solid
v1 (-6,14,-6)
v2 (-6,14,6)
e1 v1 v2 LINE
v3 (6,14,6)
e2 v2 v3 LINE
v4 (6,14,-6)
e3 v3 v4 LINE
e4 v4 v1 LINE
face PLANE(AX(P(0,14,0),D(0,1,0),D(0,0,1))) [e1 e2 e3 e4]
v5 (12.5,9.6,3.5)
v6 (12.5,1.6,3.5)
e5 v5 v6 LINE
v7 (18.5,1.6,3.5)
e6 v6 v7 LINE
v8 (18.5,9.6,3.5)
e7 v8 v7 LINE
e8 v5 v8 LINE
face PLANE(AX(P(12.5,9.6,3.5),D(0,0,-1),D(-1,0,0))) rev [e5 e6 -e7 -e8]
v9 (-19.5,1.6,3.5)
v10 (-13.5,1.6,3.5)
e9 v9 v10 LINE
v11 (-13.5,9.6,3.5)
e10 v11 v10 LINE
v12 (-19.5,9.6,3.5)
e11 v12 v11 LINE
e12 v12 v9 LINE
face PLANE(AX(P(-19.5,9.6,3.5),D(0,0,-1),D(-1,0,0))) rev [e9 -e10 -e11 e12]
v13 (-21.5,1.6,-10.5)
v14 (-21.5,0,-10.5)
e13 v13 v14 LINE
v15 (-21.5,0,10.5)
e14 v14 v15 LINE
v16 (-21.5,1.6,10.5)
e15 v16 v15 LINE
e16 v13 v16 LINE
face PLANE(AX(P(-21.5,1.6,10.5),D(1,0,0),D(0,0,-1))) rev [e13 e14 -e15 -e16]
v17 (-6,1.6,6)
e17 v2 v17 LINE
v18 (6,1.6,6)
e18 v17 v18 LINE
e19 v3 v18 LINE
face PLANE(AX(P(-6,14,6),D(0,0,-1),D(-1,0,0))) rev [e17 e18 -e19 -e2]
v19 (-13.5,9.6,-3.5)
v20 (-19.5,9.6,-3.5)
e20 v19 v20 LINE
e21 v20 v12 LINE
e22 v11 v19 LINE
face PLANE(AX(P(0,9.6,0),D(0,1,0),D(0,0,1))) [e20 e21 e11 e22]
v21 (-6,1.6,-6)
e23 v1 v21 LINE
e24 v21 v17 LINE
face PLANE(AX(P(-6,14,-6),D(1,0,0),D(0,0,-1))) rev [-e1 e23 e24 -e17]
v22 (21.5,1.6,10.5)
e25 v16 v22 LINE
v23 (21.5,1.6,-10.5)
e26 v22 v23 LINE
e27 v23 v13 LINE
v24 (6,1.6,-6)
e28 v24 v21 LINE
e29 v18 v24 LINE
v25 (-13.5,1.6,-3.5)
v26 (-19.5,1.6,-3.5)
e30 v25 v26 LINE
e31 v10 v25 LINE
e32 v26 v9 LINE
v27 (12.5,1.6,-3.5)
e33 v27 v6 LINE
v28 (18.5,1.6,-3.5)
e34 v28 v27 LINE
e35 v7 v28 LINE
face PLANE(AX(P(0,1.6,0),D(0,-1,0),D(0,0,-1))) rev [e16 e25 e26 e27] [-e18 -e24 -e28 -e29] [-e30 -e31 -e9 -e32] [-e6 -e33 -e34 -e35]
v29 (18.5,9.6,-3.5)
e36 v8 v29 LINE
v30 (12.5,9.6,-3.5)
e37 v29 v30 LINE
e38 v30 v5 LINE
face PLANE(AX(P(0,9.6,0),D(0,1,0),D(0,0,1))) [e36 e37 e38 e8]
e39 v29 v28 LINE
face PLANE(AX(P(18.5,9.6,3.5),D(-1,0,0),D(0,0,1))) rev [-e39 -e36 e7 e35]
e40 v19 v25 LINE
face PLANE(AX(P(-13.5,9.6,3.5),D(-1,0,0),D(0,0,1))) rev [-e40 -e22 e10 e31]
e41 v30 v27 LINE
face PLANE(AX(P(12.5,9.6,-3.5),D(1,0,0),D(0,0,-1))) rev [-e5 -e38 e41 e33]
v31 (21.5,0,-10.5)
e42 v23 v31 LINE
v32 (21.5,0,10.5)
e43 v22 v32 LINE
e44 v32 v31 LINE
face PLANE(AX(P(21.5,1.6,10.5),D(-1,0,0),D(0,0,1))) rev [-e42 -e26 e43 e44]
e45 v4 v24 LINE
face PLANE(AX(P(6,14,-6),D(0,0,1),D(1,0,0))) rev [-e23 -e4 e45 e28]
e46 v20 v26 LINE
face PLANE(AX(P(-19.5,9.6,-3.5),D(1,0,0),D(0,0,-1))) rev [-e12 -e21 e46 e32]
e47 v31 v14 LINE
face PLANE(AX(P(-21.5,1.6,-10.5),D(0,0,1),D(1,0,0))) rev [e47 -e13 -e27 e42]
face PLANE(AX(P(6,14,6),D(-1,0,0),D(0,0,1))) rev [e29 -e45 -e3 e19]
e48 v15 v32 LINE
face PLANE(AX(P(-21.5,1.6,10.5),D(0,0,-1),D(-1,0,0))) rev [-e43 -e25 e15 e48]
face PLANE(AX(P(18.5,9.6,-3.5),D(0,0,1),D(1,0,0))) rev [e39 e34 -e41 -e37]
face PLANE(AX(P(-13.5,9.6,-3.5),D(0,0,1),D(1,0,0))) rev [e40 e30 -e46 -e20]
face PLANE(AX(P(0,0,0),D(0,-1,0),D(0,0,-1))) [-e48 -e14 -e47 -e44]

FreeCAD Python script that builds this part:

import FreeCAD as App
import Part
import Sketcher
Q = App.Units.Quantity


def add_polygon(sketch, points):
    """Adds a closed chain of lines whose ends are joined by coincident constraints."""
    first, n = sketch.GeometryCount, len(points)
    for a, b in zip(points, points[1:] + points[:1]):
        sketch.addGeometry(Part.LineSegment(App.Vector(*a, 0), App.Vector(*b, 0)), False)
    for i in range(n):
        sketch.addConstraint(Sketcher.Constraint("Coincident", first + i, 2, first + (i + 1) % n, 1))

doc = App.newDocument("Part")
body = doc.addObject("PartDesign::Body", "Body")

sketch1 = body.newObject("Sketcher::SketchObject", "Sketch")
sketch1.AttachmentSupport = (doc.getObject("XZ_Plane"), [""])
sketch1.MapMode = "FlatFace"
add_polygon(sketch1, [(-22, -10), (-22, 10), (22, 10), (22, -10)])
sketch1.addConstraint([
    Sketcher.Constraint("Vertical", 0),
    Sketcher.Constraint("Horizontal", 1),
    Sketcher.Constraint("Vertical", 2),
    Sketcher.Constraint("Horizontal", 3),
    Sketcher.Constraint("Symmetric", 0, 2, 2, 2, -1, 1),
    Sketcher.Constraint("DistanceX", 1, 1, 1, 2, Q("43 mm")),
    Sketcher.Constraint("DistanceY", 0, 1, 0, 2, Q("21 mm")),
])
pad1 = body.newObject("PartDesign::Pad", "Pad")
pad1.Profile = sketch1
pad1.Length = 1.6
pad1.Reversed = True

sketch2 = body.newObject("Sketcher::SketchObject", "Sketch001")
sketch2.AttachmentSupport = (doc.getObject("XZ_Plane"), [""])
sketch2.MapMode = "FlatFace"
sketch2.AttachmentOffset = App.Placement(App.Vector(0, 0, -1.6), App.Rotation())
add_polygon(sketch2, [(-6, -6), (-6, 6), (6, 6), (6, -6)])
sketch2.addConstraint([
    Sketcher.Constraint("Vertical", 0),
    Sketcher.Constraint("Horizontal", 1),
    Sketcher.Constraint("Vertical", 2),
    Sketcher.Constraint("Horizontal", 3),
    Sketcher.Constraint("Symmetric", 0, 2, 2, 2, -1, 1),
    Sketcher.Constraint("Equal", 3, 0),
    Sketcher.Constraint("DistanceX", 1, 1, 1, 2, Q("12 mm")),
])
pad2 = body.newObject("PartDesign::Pad", "Pad001")
pad2.Profile = sketch2
pad2.Length = 12.4
pad2.Reversed = True

sketch3 = body.newObject("Sketcher::SketchObject", "Sketch002")
sketch3.AttachmentSupport = (doc.getObject("XZ_Plane"), [""])
sketch3.MapMode = "FlatFace"
sketch3.AttachmentOffset = App.Placement(App.Vector(0, 0, -1.6), App.Rotation())
add_polygon(sketch3, [(-20, -4), (-20, 4), (-14, 4), (-14, -4)])
sketch3.addConstraint([
    Sketcher.Constraint("Vertical", 0),
    Sketcher.Constraint("Horizontal", 1),
    Sketcher.Constraint("Vertical", 2),
    Sketcher.Constraint("Horizontal", 3),
    Sketcher.Constraint("DistanceX", 1, 1, 1, 2, Q("6 mm")),
    Sketcher.Constraint("DistanceY", 0, 1, 0, 2, Q("7 mm")),
    Sketcher.Constraint("DistanceX", 0, 2, -1, 1, Q("19.5 mm")),
    Sketcher.Constraint("DistanceY", -1, 1, 0, 2, Q("3.5 mm")),
])
pad3 = body.newObject("PartDesign::Pad", "Pad002")
pad3.Profile = sketch3
pad3.Length = 8
pad3.Reversed = True

sketch4 = body.newObject("Sketcher::SketchObject", "Sketch003")
sketch4.AttachmentSupport = (doc.getObject("XZ_Plane"), [""])
sketch4.MapMode = "FlatFace"
sketch4.AttachmentOffset = App.Placement(App.Vector(0, 0, -1.6), App.Rotation())
add_polygon(sketch4, [(12, -4), (12, 4), (18, 4), (18, -4)])
sketch4.addConstraint([
    Sketcher.Constraint("Vertical", 0),
    Sketcher.Constraint("Horizontal", 1),
    Sketcher.Constraint("Vertical", 2),
    Sketcher.Constraint("Horizontal", 3),
    Sketcher.Constraint("DistanceX", 1, 1, 1, 2, Q("6 mm")),
    Sketcher.Constraint("DistanceY", 0, 1, 0, 2, Q("7 mm")),
    Sketcher.Constraint("DistanceX", -1, 1, 0, 2, Q("12.5 mm")),
    Sketcher.Constraint("DistanceY", -1, 1, 0, 2, Q("3.5 mm")),
])
pad4 = body.newObject("PartDesign::Pad", "Pad003")
pad4.Profile = sketch4
pad4.Length = 8
pad4.Reversed = True

doc.recompute()
